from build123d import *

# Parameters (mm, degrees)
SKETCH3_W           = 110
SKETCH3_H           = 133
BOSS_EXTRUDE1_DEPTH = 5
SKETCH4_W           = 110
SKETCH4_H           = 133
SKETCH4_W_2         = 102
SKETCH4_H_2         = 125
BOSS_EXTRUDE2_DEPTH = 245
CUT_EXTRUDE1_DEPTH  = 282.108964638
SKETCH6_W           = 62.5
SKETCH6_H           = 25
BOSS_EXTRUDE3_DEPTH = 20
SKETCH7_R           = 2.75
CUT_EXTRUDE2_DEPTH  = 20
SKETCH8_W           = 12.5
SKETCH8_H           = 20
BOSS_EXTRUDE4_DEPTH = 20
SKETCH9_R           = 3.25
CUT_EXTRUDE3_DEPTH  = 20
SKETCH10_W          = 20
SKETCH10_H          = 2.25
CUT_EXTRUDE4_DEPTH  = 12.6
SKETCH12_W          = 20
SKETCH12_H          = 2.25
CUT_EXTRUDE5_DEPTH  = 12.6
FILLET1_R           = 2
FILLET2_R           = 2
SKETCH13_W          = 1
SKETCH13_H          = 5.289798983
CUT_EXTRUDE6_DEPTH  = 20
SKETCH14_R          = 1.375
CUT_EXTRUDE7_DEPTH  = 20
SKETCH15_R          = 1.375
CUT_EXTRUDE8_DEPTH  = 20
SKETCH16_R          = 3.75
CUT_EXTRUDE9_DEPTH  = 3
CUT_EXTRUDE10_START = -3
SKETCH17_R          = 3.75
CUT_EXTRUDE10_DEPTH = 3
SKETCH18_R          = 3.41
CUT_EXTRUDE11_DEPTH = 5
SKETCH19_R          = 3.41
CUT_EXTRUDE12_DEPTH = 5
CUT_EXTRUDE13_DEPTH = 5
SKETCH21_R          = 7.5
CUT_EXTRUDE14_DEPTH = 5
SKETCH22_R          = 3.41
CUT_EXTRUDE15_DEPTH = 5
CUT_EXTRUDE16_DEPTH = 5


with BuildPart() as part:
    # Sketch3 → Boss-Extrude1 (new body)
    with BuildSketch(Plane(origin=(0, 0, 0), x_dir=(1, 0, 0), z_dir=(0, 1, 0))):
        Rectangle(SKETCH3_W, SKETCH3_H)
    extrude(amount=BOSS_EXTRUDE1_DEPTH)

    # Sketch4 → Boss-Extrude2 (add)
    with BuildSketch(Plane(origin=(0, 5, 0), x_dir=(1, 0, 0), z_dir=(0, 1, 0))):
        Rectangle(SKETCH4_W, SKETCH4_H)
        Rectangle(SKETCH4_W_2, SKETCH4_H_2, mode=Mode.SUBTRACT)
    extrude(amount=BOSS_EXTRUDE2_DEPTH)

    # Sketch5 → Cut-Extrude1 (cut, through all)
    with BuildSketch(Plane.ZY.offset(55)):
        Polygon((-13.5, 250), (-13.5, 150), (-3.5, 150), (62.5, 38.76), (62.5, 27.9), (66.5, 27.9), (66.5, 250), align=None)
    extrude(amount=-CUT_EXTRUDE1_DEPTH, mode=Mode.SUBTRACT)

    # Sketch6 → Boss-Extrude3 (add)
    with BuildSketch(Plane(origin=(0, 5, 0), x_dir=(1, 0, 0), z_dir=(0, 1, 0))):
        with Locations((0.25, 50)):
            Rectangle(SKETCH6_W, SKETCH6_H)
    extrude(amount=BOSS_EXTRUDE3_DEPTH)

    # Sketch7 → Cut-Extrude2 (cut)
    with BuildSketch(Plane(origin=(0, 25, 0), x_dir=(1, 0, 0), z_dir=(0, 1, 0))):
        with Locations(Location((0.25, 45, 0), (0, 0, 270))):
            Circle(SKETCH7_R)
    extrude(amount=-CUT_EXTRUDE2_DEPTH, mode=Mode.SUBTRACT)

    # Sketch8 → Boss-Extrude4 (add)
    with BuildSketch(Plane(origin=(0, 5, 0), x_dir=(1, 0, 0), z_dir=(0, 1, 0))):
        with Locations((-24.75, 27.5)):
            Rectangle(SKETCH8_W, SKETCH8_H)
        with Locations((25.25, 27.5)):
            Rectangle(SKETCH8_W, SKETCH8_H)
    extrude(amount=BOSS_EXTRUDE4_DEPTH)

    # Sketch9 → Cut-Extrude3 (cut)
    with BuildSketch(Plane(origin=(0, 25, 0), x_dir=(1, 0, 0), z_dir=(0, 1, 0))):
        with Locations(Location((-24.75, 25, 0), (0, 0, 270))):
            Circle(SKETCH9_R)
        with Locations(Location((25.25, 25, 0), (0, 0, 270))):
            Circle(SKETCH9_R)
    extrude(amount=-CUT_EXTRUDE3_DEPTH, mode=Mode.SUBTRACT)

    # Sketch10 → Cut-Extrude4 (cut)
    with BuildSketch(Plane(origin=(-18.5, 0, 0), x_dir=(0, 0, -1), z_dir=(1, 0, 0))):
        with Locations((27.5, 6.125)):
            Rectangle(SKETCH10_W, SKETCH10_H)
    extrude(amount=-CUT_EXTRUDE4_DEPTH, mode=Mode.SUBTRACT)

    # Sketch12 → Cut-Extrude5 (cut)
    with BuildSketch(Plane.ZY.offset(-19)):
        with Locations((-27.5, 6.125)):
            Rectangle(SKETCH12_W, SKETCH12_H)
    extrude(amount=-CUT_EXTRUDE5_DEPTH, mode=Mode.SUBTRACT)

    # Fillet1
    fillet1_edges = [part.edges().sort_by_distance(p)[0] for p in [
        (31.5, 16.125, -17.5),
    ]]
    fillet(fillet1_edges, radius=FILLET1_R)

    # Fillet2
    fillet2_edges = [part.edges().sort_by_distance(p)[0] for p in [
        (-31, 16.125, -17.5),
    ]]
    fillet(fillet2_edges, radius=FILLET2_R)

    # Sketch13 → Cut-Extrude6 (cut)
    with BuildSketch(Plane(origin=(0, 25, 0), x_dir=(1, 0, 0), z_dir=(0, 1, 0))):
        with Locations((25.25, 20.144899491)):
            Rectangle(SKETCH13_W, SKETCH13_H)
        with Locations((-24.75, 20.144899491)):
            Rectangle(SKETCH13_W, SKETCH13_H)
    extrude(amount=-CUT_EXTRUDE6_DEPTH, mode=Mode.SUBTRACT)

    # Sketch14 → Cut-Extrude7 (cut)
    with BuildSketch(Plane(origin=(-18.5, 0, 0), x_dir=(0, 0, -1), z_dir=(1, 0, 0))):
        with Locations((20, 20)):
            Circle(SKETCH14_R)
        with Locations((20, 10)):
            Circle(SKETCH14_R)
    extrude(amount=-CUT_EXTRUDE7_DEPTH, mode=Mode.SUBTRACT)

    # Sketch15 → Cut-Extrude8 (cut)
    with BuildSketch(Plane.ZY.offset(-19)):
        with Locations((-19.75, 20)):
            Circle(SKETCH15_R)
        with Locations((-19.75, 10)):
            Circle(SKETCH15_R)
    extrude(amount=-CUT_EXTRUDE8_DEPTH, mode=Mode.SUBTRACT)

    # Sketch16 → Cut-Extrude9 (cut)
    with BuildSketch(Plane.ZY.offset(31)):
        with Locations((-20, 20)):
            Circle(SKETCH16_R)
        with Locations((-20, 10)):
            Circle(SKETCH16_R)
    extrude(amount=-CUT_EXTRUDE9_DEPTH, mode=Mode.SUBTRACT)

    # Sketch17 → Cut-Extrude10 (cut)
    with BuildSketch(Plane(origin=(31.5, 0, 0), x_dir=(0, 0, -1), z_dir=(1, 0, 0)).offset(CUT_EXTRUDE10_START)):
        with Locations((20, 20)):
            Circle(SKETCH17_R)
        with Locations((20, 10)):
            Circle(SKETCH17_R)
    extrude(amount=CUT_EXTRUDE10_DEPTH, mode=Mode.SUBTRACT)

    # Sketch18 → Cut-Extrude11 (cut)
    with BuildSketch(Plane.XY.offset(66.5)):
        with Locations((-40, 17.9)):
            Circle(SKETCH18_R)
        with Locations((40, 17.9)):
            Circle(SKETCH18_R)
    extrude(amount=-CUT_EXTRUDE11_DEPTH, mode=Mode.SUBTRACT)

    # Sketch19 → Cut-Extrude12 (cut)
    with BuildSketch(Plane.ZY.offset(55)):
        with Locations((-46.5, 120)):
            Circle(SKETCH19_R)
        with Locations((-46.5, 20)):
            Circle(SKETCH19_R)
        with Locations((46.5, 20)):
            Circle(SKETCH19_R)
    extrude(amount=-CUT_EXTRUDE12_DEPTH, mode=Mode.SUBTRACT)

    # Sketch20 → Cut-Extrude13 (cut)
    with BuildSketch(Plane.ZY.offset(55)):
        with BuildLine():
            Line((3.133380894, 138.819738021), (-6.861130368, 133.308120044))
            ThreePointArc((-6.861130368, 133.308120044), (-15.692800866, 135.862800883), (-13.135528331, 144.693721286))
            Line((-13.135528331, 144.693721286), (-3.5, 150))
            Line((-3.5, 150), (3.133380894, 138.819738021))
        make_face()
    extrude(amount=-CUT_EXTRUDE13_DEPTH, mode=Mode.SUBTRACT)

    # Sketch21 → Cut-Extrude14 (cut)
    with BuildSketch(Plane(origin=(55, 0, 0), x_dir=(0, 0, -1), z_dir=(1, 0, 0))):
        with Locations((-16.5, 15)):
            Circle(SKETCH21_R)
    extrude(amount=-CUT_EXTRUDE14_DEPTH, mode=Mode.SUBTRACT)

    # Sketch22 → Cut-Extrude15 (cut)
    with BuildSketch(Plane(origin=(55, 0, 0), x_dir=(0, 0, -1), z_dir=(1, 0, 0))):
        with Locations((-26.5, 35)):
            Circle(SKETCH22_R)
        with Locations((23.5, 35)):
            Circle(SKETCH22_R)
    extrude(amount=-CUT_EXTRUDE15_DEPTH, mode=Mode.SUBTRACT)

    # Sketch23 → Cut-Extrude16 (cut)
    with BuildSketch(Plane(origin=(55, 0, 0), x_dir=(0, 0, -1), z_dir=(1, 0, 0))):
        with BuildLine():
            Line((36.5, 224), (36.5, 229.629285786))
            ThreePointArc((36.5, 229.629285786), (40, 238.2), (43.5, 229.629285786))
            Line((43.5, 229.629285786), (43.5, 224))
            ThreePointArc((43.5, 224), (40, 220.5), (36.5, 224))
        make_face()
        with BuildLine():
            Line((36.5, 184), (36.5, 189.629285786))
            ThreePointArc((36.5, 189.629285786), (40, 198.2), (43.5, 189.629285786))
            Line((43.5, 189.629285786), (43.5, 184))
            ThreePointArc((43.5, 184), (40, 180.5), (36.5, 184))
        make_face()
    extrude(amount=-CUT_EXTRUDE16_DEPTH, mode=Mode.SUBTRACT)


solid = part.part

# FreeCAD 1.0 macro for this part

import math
import FreeCAD as App
import Part
import Sketcher
Q = App.Units.Quantity


def edges_at(feature, points):
    """Names of the edges that pass closest to the given points."""
    edges = feature.Shape.Edges
    near = lambda p: min(range(len(edges)), key=lambda i: edges[i].distToShape(Part.Vertex(*p))[0])
    return sorted({f"Edge{near(p) + 1}" for p in points})

doc = App.newDocument("Part")
body = doc.addObject("PartDesign::Body", "Body")

# Sketch on XZ plane
sketch1 = body.newObject("Sketcher::SketchObject", "Sketch")
sketch1.AttachmentSupport = (doc.getObject("XZ_Plane"), [""])
sketch1.MapMode = "FlatFace"
sketch1.addGeometry(Part.LineSegment(App.Vector(-55, -66, 0), App.Vector(-55, 66, 0)), False)
sketch1.addGeometry(Part.LineSegment(App.Vector(-55, 66, 0), App.Vector(55, 66, 0)), False)
sketch1.addGeometry(Part.LineSegment(App.Vector(55, 66, 0), App.Vector(55, -66, 0)), False)
sketch1.addGeometry(Part.LineSegment(App.Vector(55, -66, 0), App.Vector(-55, -66, 0)), False)
sketch1.addConstraint(Sketcher.Constraint("Coincident", 0, 2, 1, 1))
sketch1.addConstraint(Sketcher.Constraint("Coincident", 1, 2, 2, 1))
sketch1.addConstraint(Sketcher.Constraint("Coincident", 2, 2, 3, 1))
sketch1.addConstraint(Sketcher.Constraint("Coincident", 3, 2, 0, 1))
sketch1.addConstraint(Sketcher.Constraint("Vertical", 0))
sketch1.addConstraint(Sketcher.Constraint("Horizontal", 1))
sketch1.addConstraint(Sketcher.Constraint("Vertical", 2))
sketch1.addConstraint(Sketcher.Constraint("Horizontal", 3))
sketch1.addConstraint(Sketcher.Constraint("Symmetric", 0, 2, 2, 2, -1, 1))
sketch1.addConstraint(Sketcher.Constraint("DistanceX", 1, 1, 1, 2, Q("110 mm")))
sketch1.addConstraint(Sketcher.Constraint("DistanceY", 0, 1, 0, 2, Q("133 mm")))
pad1 = body.newObject("PartDesign::Pad", "Pad")
pad1.Profile = sketch1
pad1.Length = 5
pad1.Reversed = True

# Sketch on XZ plane
sketch2 = body.newObject("Sketcher::SketchObject", "Sketch001")
sketch2.AttachmentSupport = (doc.getObject("XZ_Plane"), [""])
sketch2.MapMode = "FlatFace"
sketch2.AttachmentOffset = App.Placement(App.Vector(0, 0, -5), App.Rotation())
sketch2.addGeometry(Part.LineSegment(App.Vector(-55, -66, 0), App.Vector(-55, 66, 0)), False)
sketch2.addGeometry(Part.LineSegment(App.Vector(-55, 66, 0), App.Vector(55, 66, 0)), False)
sketch2.addGeometry(Part.LineSegment(App.Vector(55, 66, 0), App.Vector(55, -66, 0)), False)
sketch2.addGeometry(Part.LineSegment(App.Vector(55, -66, 0), App.Vector(-55, -66, 0)), False)
sketch2.addGeometry(Part.LineSegment(App.Vector(51, 62, 0), App.Vector(-51, 62, 0)), False)
sketch2.addGeometry(Part.LineSegment(App.Vector(-51, 62, 0), App.Vector(-51, -62, 0)), False)
sketch2.addGeometry(Part.LineSegment(App.Vector(-51, -62, 0), App.Vector(51, -62, 0)), False)
sketch2.addGeometry(Part.LineSegment(App.Vector(51, -62, 0), App.Vector(51, 62, 0)), False)
sketch2.addConstraint(Sketcher.Constraint("Coincident", 0, 2, 1, 1))
sketch2.addConstraint(Sketcher.Constraint("Coincident", 1, 2, 2, 1))
sketch2.addConstraint(Sketcher.Constraint("Coincident", 2, 2, 3, 1))
sketch2.addConstraint(Sketcher.Constraint("Coincident", 3, 2, 0, 1))
sketch2.addConstraint(Sketcher.Constraint("Coincident", 4, 2, 5, 1))
sketch2.addConstraint(Sketcher.Constraint("Coincident", 5, 2, 6, 1))
sketch2.addConstraint(Sketcher.Constraint("Coincident", 6, 2, 7, 1))
sketch2.addConstraint(Sketcher.Constraint("Coincident", 7, 2, 4, 1))
sketch2.addConstraint(Sketcher.Constraint("Vertical", 0))
sketch2.addConstraint(Sketcher.Constraint("Horizontal", 1))
sketch2.addConstraint(Sketcher.Constraint("Vertical", 2))
sketch2.addConstraint(Sketcher.Constraint("Horizontal", 3))
sketch2.addConstraint(Sketcher.Constraint("Horizontal", 4))
sketch2.addConstraint(Sketcher.Constraint("Vertical", 5))
sketch2.addConstraint(Sketcher.Constraint("Horizontal", 6))
sketch2.addConstraint(Sketcher.Constraint("Vertical", 7))
sketch2.addConstraint(Sketcher.Constraint("Symmetric", 0, 2, 2, 2, -1, 1))
sketch2.addConstraint(Sketcher.Constraint("Symmetric", 4, 2, 6, 2, -1, 1))
sketch2.addConstraint(Sketcher.Constraint("DistanceX", 1, 1, 1, 2, Q("110 mm")))
sketch2.addConstraint(Sketcher.Constraint("DistanceX", 4, 2, 4, 1, Q("102 mm")))
sketch2.addConstraint(Sketcher.Constraint("DistanceY", 0, 1, 0, 2, Q("133 mm")))
sketch2.addConstraint(Sketcher.Constraint("DistanceY", 5, 2, 5, 1, Q("125 mm")))
pad2 = body.newObject("PartDesign::Pad", "Pad001")
pad2.Profile = sketch2
pad2.Length = 245
pad2.Reversed = True

# Sketch on YZ plane
sketch3 = body.newObject("Sketcher::SketchObject", "Sketch002")
sketch3.AttachmentSupport = (doc.getObject("YZ_Plane"), [""])
sketch3.MapMode = "FlatFace"
sketch3.AttachmentOffset = App.Placement(App.Vector(0, 0, -55), App.Rotation())
sketch3.addGeometry(Part.LineSegment(App.Vector(250, -13.5, 0), App.Vector(150, -13.5, 0)), False)
sketch3.addGeometry(Part.LineSegment(App.Vector(150, -13.5, 0), App.Vector(150, -3.5, 0)), False)
sketch3.addGeometry(Part.LineSegment(App.Vector(150, -3.5, 0), App.Vector(38.8, 62.5, 0)), False)
sketch3.addGeometry(Part.LineSegment(App.Vector(38.8, 62.5, 0), App.Vector(27.9, 62.5, 0)), False)
sketch3.addGeometry(Part.LineSegment(App.Vector(27.9, 62.5, 0), App.Vector(27.9, 66.5, 0)), False)
sketch3.addGeometry(Part.LineSegment(App.Vector(27.9, 66.5, 0), App.Vector(250, 66.5, 0)), False)
sketch3.addGeometry(Part.LineSegment(App.Vector(250, 66.5, 0), App.Vector(250, -13.5, 0)), False)
sketch3.addConstraint(Sketcher.Constraint("Coincident", 0, 2, 1, 1))
sketch3.addConstraint(Sketcher.Constraint("Coincident", 1, 2, 2, 1))
sketch3.addConstraint(Sketcher.Constraint("Coincident", 2, 2, 3, 1))
sketch3.addConstraint(Sketcher.Constraint("Coincident", 3, 2, 4, 1))
sketch3.addConstraint(Sketcher.Constraint("Coincident", 4, 2, 5, 1))
sketch3.addConstraint(Sketcher.Constraint("Coincident", 5, 2, 6, 1))
sketch3.addConstraint(Sketcher.Constraint("Coincident", 6, 2, 0, 1))
sketch3.addConstraint(Sketcher.Constraint("Horizontal", 0))
sketch3.addConstraint(Sketcher.Constraint("Vertical", 1))
sketch3.addConstraint(Sketcher.Constraint("Horizontal", 3))
sketch3.addConstraint(Sketcher.Constraint("Vertical", 4))
sketch3.addConstraint(Sketcher.Constraint("Horizontal", 5))
sketch3.addConstraint(Sketcher.Constraint("Vertical", 6))
sketch3.addConstraint(Sketcher.Constraint("DistanceX", 0, 2, 0, 1, Q("100 mm")))
sketch3.addConstraint(Sketcher.Constraint("DistanceY", 1, 1, 1, 2, Q("10 mm")))
sketch3.addConstraint(Sketcher.Constraint("DistanceY", 4, 1, 4, 2, Q("4 mm")))
sketch3.addConstraint(Sketcher.Constraint("DistanceY", 6, 2, 6, 1, Q("80 mm")))
sketch3.addConstraint(Sketcher.Constraint("DistanceX", 5, 1, 5, 2, Q("222.1 mm")))
sketch3.addConstraint(Sketcher.Constraint("DistanceX", -1, 1, 0, 2, Q("150 mm")))
sketch3.addConstraint(Sketcher.Constraint("DistanceX", 3, 2, 3, 1, Q("10.86 mm")))
sketch3.addConstraint(Sketcher.Constraint("DistanceY", 0, 2, -1, 1, Q("13.5 mm")))
pocket1 = body.newObject("PartDesign::Pocket", "Pocket")
pocket1.Profile = sketch3
pocket1.Type = "ThroughAll"
pocket1.Reversed = True

# Sketch on XZ plane
sketch4 = body.newObject("Sketcher::SketchObject", "Sketch003")
sketch4.AttachmentSupport = (doc.getObject("XZ_Plane"), [""])
sketch4.MapMode = "FlatFace"
sketch4.AttachmentOffset = App.Placement(App.Vector(0, 0, -5), App.Rotation())
sketch4.addGeometry(Part.LineSegment(App.Vector(-31, -62, 0), App.Vector(-31, -38, 0)), False)
sketch4.addGeometry(Part.LineSegment(App.Vector(-31, -38, 0), App.Vector(32, -38, 0)), False)
sketch4.addGeometry(Part.LineSegment(App.Vector(32, -38, 0), App.Vector(32, -62, 0)), False)
sketch4.addGeometry(Part.LineSegment(App.Vector(32, -62, 0), App.Vector(-31, -62, 0)), False)
sketch4.addConstraint(Sketcher.Constraint("Coincident", 0, 2, 1, 1))
sketch4.addConstraint(Sketcher.Constraint("Coincident", 1, 2, 2, 1))
sketch4.addConstraint(Sketcher.Constraint("Coincident", 2, 2, 3, 1))
sketch4.addConstraint(Sketcher.Constraint("Coincident", 3, 2, 0, 1))
sketch4.addConstraint(Sketcher.Constraint("Vertical", 0))
sketch4.addConstraint(Sketcher.Constraint("Horizontal", 1))
sketch4.addConstraint(Sketcher.Constraint("Vertical", 2))
sketch4.addConstraint(Sketcher.Constraint("Horizontal", 3))
sketch4.addConstraint(Sketcher.Constraint("DistanceY", 0, 1, 0, 2, Q("25 mm")))
sketch4.addConstraint(Sketcher.Constraint("DistanceX", 1, 1, 1, 2, Q("62.5 mm")))
sketch4.addConstraint(Sketcher.Constraint("DistanceX", 0, 2, -1, 1, Q("31 mm")))
sketch4.addConstraint(Sketcher.Constraint("DistanceY", 0, 2, -1, 1, Q("37.5 mm")))
pad3 = body.newObject("PartDesign::Pad", "Pad002")
pad3.Profile = sketch4
pad3.Length = 20
pad3.Reversed = True

# Sketch on XZ plane
sketch5 = body.newObject("Sketcher::SketchObject", "Sketch004")
sketch5.AttachmentSupport = (doc.getObject("XZ_Plane"), [""])
sketch5.MapMode = "FlatFace"
sketch5.AttachmentOffset = App.Placement(App.Vector(0, 0, -25), App.Rotation())
sketch5.addGeometry(Part.Circle(App.Vector(0.2, -45, 0), App.Vector(0, 0, 1), 2.8), False)
sketch5.addConstraint(Sketcher.Constraint("Diameter", 0, Q("5.5 mm")))
sketch5.addConstraint(Sketcher.Constraint("DistanceY", 0, 3, -1, 1, Q("45 mm")))
sketch5.addConstraint(Sketcher.Constraint("DistanceX", -1, 1, 0, 3, Q("0.25 mm")))
pocket2 = body.newObject("PartDesign::Pocket", "Pocket001")
pocket2.Profile = sketch5
pocket2.Length = 20
pocket2.Reversed = True

# Sketch on XZ plane
sketch6 = body.newObject("Sketcher::SketchObject", "Sketch005")
sketch6.AttachmentSupport = (doc.getObject("XZ_Plane"), [""])
sketch6.MapMode = "FlatFace"
sketch6.AttachmentOffset = App.Placement(App.Vector(0, 0, -5), App.Rotation())
sketch6.addGeometry(Part.LineSegment(App.Vector(-31, -38, 0), App.Vector(-31, -18, 0)), False)
sketch6.addGeometry(Part.LineSegment(App.Vector(-31, -18, 0), App.Vector(-18, -18, 0)), False)
sketch6.addGeometry(Part.LineSegment(App.Vector(-18, -18, 0), App.Vector(-18, -38, 0)), False)
sketch6.addGeometry(Part.LineSegment(App.Vector(-18, -38, 0), App.Vector(-31, -38, 0)), False)
sketch6.addGeometry(Part.LineSegment(App.Vector(19, -38, 0), App.Vector(19, -18, 0)), False)
sketch6.addGeometry(Part.LineSegment(App.Vector(19, -18, 0), App.Vector(32, -18, 0)), False)
sketch6.addGeometry(Part.LineSegment(App.Vector(32, -18, 0), App.Vector(32, -38, 0)), False)
sketch6.addGeometry(Part.LineSegment(App.Vector(32, -38, 0), App.Vector(19, -38, 0)), False)
sketch6.addConstraint(Sketcher.Constraint("Coincident", 0, 2, 1, 1))
sketch6.addConstraint(Sketcher.Constraint("Coincident", 1, 2, 2, 1))
sketch6.addConstraint(Sketcher.Constraint("Coincident", 2, 2, 3, 1))
sketch6.addConstraint(Sketcher.Constraint("Coincident", 3, 2, 0, 1))
sketch6.addConstraint(Sketcher.Constraint("Coincident", 4, 2, 5, 1))
sketch6.addConstraint(Sketcher.Constraint("Coincident", 5, 2, 6, 1))
sketch6.addConstraint(Sketcher.Constraint("Coincident", 6, 2, 7, 1))
sketch6.addConstraint(Sketcher.Constraint("Coincident", 7, 2, 4, 1))
sketch6.addConstraint(Sketcher.Constraint("Vertical", 0))
sketch6.addConstraint(Sketcher.Constraint("Horizontal", 1))
sketch6.addConstraint(Sketcher.Constraint("Vertical", 2))
sketch6.addConstraint(Sketcher.Constraint("Horizontal", 3))
sketch6.addConstraint(Sketcher.Constraint("Vertical", 4))
sketch6.addConstraint(Sketcher.Constraint("Horizontal", 5))
sketch6.addConstraint(Sketcher.Constraint("Vertical", 6))
sketch6.addConstraint(Sketcher.Constraint("Horizontal", 7))
sketch6.addConstraint(Sketcher.Constraint("Horizontal", 1, 2, 4, 2))
sketch6.addConstraint(Sketcher.Constraint("Horizontal", 3, 2, 6, 2))
sketch6.addConstraint(Sketcher.Constraint("Equal", 3, 5))
sketch6.addConstraint(Sketcher.Constraint("DistanceY", 0, 1, 0, 2, Q("20 mm")))
sketch6.addConstraint(Sketcher.Constraint("DistanceX", 1, 1, 1, 2, Q("12.5 mm")))
sketch6.addConstraint(Sketcher.Constraint("DistanceX", 0, 2, -1, 1, Q("31 mm")))
sketch6.addConstraint(Sketcher.Constraint("DistanceX", -1, 1, 4, 2, Q("19 mm")))
sketch6.addConstraint(Sketcher.Constraint("DistanceY", 0, 2, -1, 1, Q("17.5 mm")))
pad4 = body.newObject("PartDesign::Pad", "Pad003")
pad4.Profile = sketch6
pad4.Length = 20
pad4.Reversed = True

# Sketch on XZ plane
sketch7 = body.newObject("Sketcher::SketchObject", "Sketch006")
sketch7.AttachmentSupport = (doc.getObject("XZ_Plane"), [""])
sketch7.MapMode = "FlatFace"
sketch7.AttachmentOffset = App.Placement(App.Vector(0, 0, -25), App.Rotation())
sketch7.addGeometry(Part.Circle(App.Vector(-24.8, -25, 0), App.Vector(0, 0, 1), 3.2), False)
sketch7.addGeometry(Part.Circle(App.Vector(25.2, -25, 0), App.Vector(0, 0, 1), 3.2), False)
sketch7.addConstraint(Sketcher.Constraint("Equal", 0, 1))
sketch7.addConstraint(Sketcher.Constraint("Horizontal", 0, 3, 1, 3))
sketch7.addConstraint(Sketcher.Constraint("Diameter", 0, Q("6.5 mm")))
sketch7.addConstraint(Sketcher.Constraint("DistanceY", 0, 3, -1, 1, Q("25 mm")))
sketch7.addConstraint(Sketcher.Constraint("DistanceX", 0, 3, 1, 3, Q("50 mm")))
sketch7.addConstraint(Sketcher.Constraint("DistanceX", 0, 3, -1, 1, Q("24.75 mm")))
pocket3 = body.newObject("PartDesign::Pocket", "Pocket002")
pocket3.Profile = sketch7
pocket3.Length = 20
pocket3.Reversed = True

# Sketch on YZ plane
sketch8 = body.newObject("Sketcher::SketchObject", "Sketch007")
sketch8.AttachmentSupport = (doc.getObject("YZ_Plane"), [""])
sketch8.MapMode = "FlatFace"
sketch8.AttachmentOffset = App.Placement(App.Vector(0, 0, -18.5), App.Rotation())
sketch8.addGeometry(Part.LineSegment(App.Vector(7.2, -17.5, 0), App.Vector(5, -17.5, 0)), False)
sketch8.addGeometry(Part.LineSegment(App.Vector(5, -17.5, 0), App.Vector(5, -37.5, 0)), False)
sketch8.addGeometry(Part.LineSegment(App.Vector(5, -37.5, 0), App.Vector(7.2, -37.5, 0)), False)
sketch8.addGeometry(Part.LineSegment(App.Vector(7.2, -37.5, 0), App.Vector(7.2, -17.5, 0)), False)
sketch8.addConstraint(Sketcher.Constraint("Coincident", 0, 2, 1, 1))
sketch8.addConstraint(Sketcher.Constraint("Coincident", 1, 2, 2, 1))
sketch8.addConstraint(Sketcher.Constraint("Coincident", 2, 2, 3, 1))
sketch8.addConstraint(Sketcher.Constraint("Coincident", 3, 2, 0, 1))
sketch8.addConstraint(Sketcher.Constraint("Horizontal", 0))
sketch8.addConstraint(Sketcher.Constraint("Vertical", 1))
sketch8.addConstraint(Sketcher.Constraint("Horizontal", 2))
sketch8.addConstraint(Sketcher.Constraint("Vertical", 3))
sketch8.addConstraint(Sketcher.Constraint("DistanceY", 1, 2, 1, 1, Q("20 mm")))
sketch8.addConstraint(Sketcher.Constraint("DistanceX", -1, 1, 0, 2, Q("5 mm")))
sketch8.addConstraint(Sketcher.Constraint("DistanceX", 0, 2, 0, 1, Q("2.25 mm")))
sketch8.addConstraint(Sketcher.Constraint("DistanceY", 0, 2, -1, 1, Q("17.5 mm")))
pocket4 = body.newObject("PartDesign::Pocket", "Pocket003")
pocket4.Profile = sketch8
pocket4.Length = 12.6

# Sketch on YZ plane
sketch9 = body.newObject("Sketcher::SketchObject", "Sketch008")
sketch9.AttachmentSupport = (doc.getObject("YZ_Plane"), [""])
sketch9.MapMode = "FlatFace"
sketch9.AttachmentOffset = App.Placement(App.Vector(0, 0, 19), App.Rotation())
sketch9.addGeometry(Part.LineSegment(App.Vector(7.2, -37.5, 0), App.Vector(5, -37.5, 0)), False)
sketch9.addGeometry(Part.LineSegment(App.Vector(5, -37.5, 0), App.Vector(5, -17.5, 0)), False)
sketch9.addGeometry(Part.LineSegment(App.Vector(5, -17.5, 0), App.Vector(7.2, -17.5, 0)), False)
sketch9.addGeometry(Part.LineSegment(App.Vector(7.2, -17.5, 0), App.Vector(7.2, -37.5, 0)), False)
sketch9.addConstraint(Sketcher.Constraint("Coincident", 0, 2, 1, 1))
sketch9.addConstraint(Sketcher.Constraint("Coincident", 1, 2, 2, 1))
sketch9.addConstraint(Sketcher.Constraint("Coincident", 2, 2, 3, 1))
sketch9.addConstraint(Sketcher.Constraint("Coincident", 3, 2, 0, 1))
sketch9.addConstraint(Sketcher.Constraint("Horizontal", 0))
sketch9.addConstraint(Sketcher.Constraint("Vertical", 1))
sketch9.addConstraint(Sketcher.Constraint("Horizontal", 2))
sketch9.addConstraint(Sketcher.Constraint("Vertical", 3))
sketch9.addConstraint(Sketcher.Constraint("DistanceY", 1, 1, 1, 2, Q("20 mm")))
sketch9.addConstraint(Sketcher.Constraint("DistanceX", -1, 1, 0, 2, Q("5 mm")))
sketch9.addConstraint(Sketcher.Constraint("DistanceX", 0, 2, 0, 1, Q("2.25 mm")))
sketch9.addConstraint(Sketcher.Constraint("DistanceY", 0, 2, -1, 1, Q("37.5 mm")))
pocket5 = body.newObject("PartDesign::Pocket", "Pocket004")
pocket5.Profile = sketch9
pocket5.Length = 12.6
pocket5.Reversed = True
doc.recompute()

fillet = body.newObject("PartDesign::Fillet", "Fillet")
fillet.Base = (pocket5, edges_at(pocket5, [(31.5, 16.125, -17.5)]))
fillet.Radius = 2
doc.recompute()

fillet2 = body.newObject("PartDesign::Fillet", "Fillet001")
fillet2.Base = (fillet, edges_at(fillet, [(-31, 16.125, -17.5)]))
fillet2.Radius = 2

# Sketch on XZ plane
sketch10 = body.newObject("Sketcher::SketchObject", "Sketch009")
sketch10.AttachmentSupport = (doc.getObject("XZ_Plane"), [""])
sketch10.MapMode = "FlatFace"
sketch10.AttachmentOffset = App.Placement(App.Vector(0, 0, -25), App.Rotation())
sketch10.addGeometry(Part.LineSegment(App.Vector(24.8, -22.8, 0), App.Vector(24.8, -17.5, 0)), False)
sketch10.addGeometry(Part.LineSegment(App.Vector(24.8, -17.5, 0), App.Vector(25.8, -17.5, 0)), False)
sketch10.addGeometry(Part.LineSegment(App.Vector(25.8, -17.5, 0), App.Vector(25.8, -22.8, 0)), False)
sketch10.addGeometry(Part.LineSegment(App.Vector(25.8, -22.8, 0), App.Vector(24.8, -22.8, 0)), False)
sketch10.addGeometry(Part.LineSegment(App.Vector(-25.2, -22.8, 0), App.Vector(-25.2, -17.5, 0)), False)
sketch10.addGeometry(Part.LineSegment(App.Vector(-25.2, -17.5, 0), App.Vector(-24.2, -17.5, 0)), False)
sketch10.addGeometry(Part.LineSegment(App.Vector(-24.2, -17.5, 0), App.Vector(-24.2, -22.8, 0)), False)
sketch10.addGeometry(Part.LineSegment(App.Vector(-24.2, -22.8, 0), App.Vector(-25.2, -22.8, 0)), False)
sketch10.addConstraint(Sketcher.Constraint("Coincident", 0, 2, 1, 1))
sketch10.addConstraint(Sketcher.Constraint("Coincident", 1, 2, 2, 1))
sketch10.addConstraint(Sketcher.Constraint("Coincident", 2, 2, 3, 1))
sketch10.addConstraint(Sketcher.Constraint("Coincident", 3, 2, 0, 1))
sketch10.addConstraint(Sketcher.Constraint("Coincident", 4, 2, 5, 1))
sketch10.addConstraint(Sketcher.Constraint("Coincident", 5, 2, 6, 1))
sketch10.addConstraint(Sketcher.Constraint("Coincident", 6, 2, 7, 1))
sketch10.addConstraint(Sketcher.Constraint("Coincident", 7, 2, 4, 1))
sketch10.addConstraint(Sketcher.Constraint("Vertical", 0))
sketch10.addConstraint(Sketcher.Constraint("Horizontal", 1))
sketch10.addConstraint(Sketcher.Constraint("Vertical", 2))
sketch10.addConstraint(Sketcher.Constraint("Horizontal", 3))
sketch10.addConstraint(Sketcher.Constraint("Vertical", 4))
sketch10.addConstraint(Sketcher.Constraint("Horizontal", 5))
sketch10.addConstraint(Sketcher.Constraint("Vertical", 6))
sketch10.addConstraint(Sketcher.Constraint("Horizontal", 7))
sketch10.addConstraint(Sketcher.Constraint("Horizontal", 1, 2, 4, 2))
sketch10.addConstraint(Sketcher.Constraint("Horizontal", 3, 2, 6, 2))
sketch10.addConstraint(Sketcher.Constraint("Equal", 3, 5))
sketch10.addConstraint(Sketcher.Constraint("DistanceX", 1, 1, 1, 2, Q("1 mm")))
sketch10.addConstraint(Sketcher.Constraint("DistanceX", 4, 2, 0, 2, Q("50 mm")))
sketch10.addConstraint(Sketcher.Constraint("DistanceY", 0, 2, -1, 1, Q("17.5 mm")))
sketch10.addConstraint(Sketcher.Constraint("DistanceX", -1, 1, 0, 2, Q("24.75 mm")))
sketch10.addConstraint(Sketcher.Constraint("DistanceY", 0, 1, 0, 2, Q("5.289799 mm")))
pocket6 = body.newObject("PartDesign::Pocket", "Pocket005")
pocket6.Profile = sketch10
pocket6.Length = 20
pocket6.Reversed = True

# Sketch on YZ plane
sketch11 = body.newObject("Sketcher::SketchObject", "Sketch010")
sketch11.AttachmentSupport = (doc.getObject("YZ_Plane"), [""])
sketch11.MapMode = "FlatFace"
sketch11.AttachmentOffset = App.Placement(App.Vector(0, 0, -18.5), App.Rotation())
sketch11.addGeometry(Part.Circle(App.Vector(20, -20, 0), App.Vector(0, 0, 1), 1.4), False)
sketch11.addGeometry(Part.Circle(App.Vector(10, -20, 0), App.Vector(0, 0, 1), 1.4), False)
sketch11.addConstraint(Sketcher.Constraint("Equal", 0, 1))
sketch11.addConstraint(Sketcher.Constraint("Horizontal", 0, 3, 1, 3))
sketch11.addConstraint(Sketcher.Constraint("Diameter", 0, Q("2.75 mm")))
sketch11.addConstraint(Sketcher.Constraint("DistanceX", -1, 1, 0, 3, Q("20 mm")))
sketch11.addConstraint(Sketcher.Constraint("DistanceY", 0, 3, -1, 1, Q("20 mm")))
sketch11.addConstraint(Sketcher.Constraint("DistanceX", -1, 1, 1, 3, Q("10 mm")))
pocket7 = body.newObject("PartDesign::Pocket", "Pocket006")
pocket7.Profile = sketch11
pocket7.Length = 20

# Sketch on YZ plane
sketch12 = body.newObject("Sketcher::SketchObject", "Sketch011")
sketch12.AttachmentSupport = (doc.getObject("YZ_Plane"), [""])
sketch12.MapMode = "FlatFace"
sketch12.AttachmentOffset = App.Placement(App.Vector(0, 0, 19), App.Rotation())
sketch12.addGeometry(Part.Circle(App.Vector(20, -19.8, 0), App.Vector(0, 0, 1), 1.4), False)
sketch12.addGeometry(Part.Circle(App.Vector(10, -19.8, 0), App.Vector(0, 0, 1), 1.4), False)
sketch12.addConstraint(Sketcher.Constraint("Equal", 0, 1))
sketch12.addConstraint(Sketcher.Constraint("Horizontal", 0, 3, 1, 3))
sketch12.addConstraint(Sketcher.Constraint("Diameter", 0, Q("2.75 mm")))
sketch12.addConstraint(Sketcher.Constraint("DistanceX", -1, 1, 0, 3, Q("20 mm")))
sketch12.addConstraint(Sketcher.Constraint("DistanceX", -1, 1, 1, 3, Q("10 mm")))
sketch12.addConstraint(Sketcher.Constraint("DistanceY", 0, 3, -1, 1, Q("19.75 mm")))
pocket8 = body.newObject("PartDesign::Pocket", "Pocket007")
pocket8.Profile = sketch12
pocket8.Length = 20
pocket8.Reversed = True

# Sketch on YZ plane
sketch13 = body.newObject("Sketcher::SketchObject", "Sketch012")
sketch13.AttachmentSupport = (doc.getObject("YZ_Plane"), [""])
sketch13.MapMode = "FlatFace"
sketch13.AttachmentOffset = App.Placement(App.Vector(0, 0, -31), App.Rotation())
sketch13.addGeometry(Part.Circle(App.Vector(20, -20, 0), App.Vector(0, 0, 1), 3.8), False)
sketch13.addGeometry(Part.Circle(App.Vector(10, -20, 0), App.Vector(0, 0, 1), 3.8), False)
sketch13.addConstraint(Sketcher.Constraint("Equal", 0, 1))
sketch13.addConstraint(Sketcher.Constraint("Horizontal", 0, 3, 1, 3))
sketch13.addConstraint(Sketcher.Constraint("Diameter", 0, Q("7.5 mm")))
sketch13.addConstraint(Sketcher.Constraint("DistanceX", -1, 1, 0, 3, Q("20 mm")))
sketch13.addConstraint(Sketcher.Constraint("DistanceY", 0, 3, -1, 1, Q("20 mm")))
sketch13.addConstraint(Sketcher.Constraint("DistanceX", -1, 1, 1, 3, Q("10 mm")))
pocket9 = body.newObject("PartDesign::Pocket", "Pocket008")
pocket9.Profile = sketch13
pocket9.Length = 3
pocket9.Reversed = True

# Sketch on YZ plane
sketch14 = body.newObject("Sketcher::SketchObject", "Sketch013")
sketch14.AttachmentSupport = (doc.getObject("YZ_Plane"), [""])
sketch14.MapMode = "FlatFace"
sketch14.AttachmentOffset = App.Placement(App.Vector(0, 0, 28.5), App.Rotation())
sketch14.addGeometry(Part.Circle(App.Vector(20, -20, 0), App.Vector(0, 0, 1), 3.8), False)
sketch14.addGeometry(Part.Circle(App.Vector(10, -20, 0), App.Vector(0, 0, 1), 3.8), False)
sketch14.addConstraint(Sketcher.Constraint("Equal", 0, 1))
sketch14.addConstraint(Sketcher.Constraint("Horizontal", 0, 3, 1, 3))
sketch14.addConstraint(Sketcher.Constraint("Diameter", 0, Q("7.5 mm")))
sketch14.addConstraint(Sketcher.Constraint("DistanceX", -1, 1, 0, 3, Q("20 mm")))
sketch14.addConstraint(Sketcher.Constraint("DistanceY", 0, 3, -1, 1, Q("20 mm")))
sketch14.addConstraint(Sketcher.Constraint("DistanceX", -1, 1, 1, 3, Q("10 mm")))
pocket10 = body.newObject("PartDesign::Pocket", "Pocket009")
pocket10.Profile = sketch14
pocket10.Length = 3
pocket10.Reversed = True

# Sketch on XY plane
sketch15 = body.newObject("Sketcher::SketchObject", "Sketch014")
sketch15.AttachmentSupport = (doc.getObject("XY_Plane"), [""])
sketch15.MapMode = "FlatFace"
sketch15.AttachmentOffset = App.Placement(App.Vector(0, 0, 66.5), App.Rotation())
sketch15.addGeometry(Part.Circle(App.Vector(-40, 17.9, 0), App.Vector(0, 0, 1), 3.4), False)
sketch15.addGeometry(Part.Circle(App.Vector(40, 17.9, 0), App.Vector(0, 0, 1), 3.4), False)
sketch15.addConstraint(Sketcher.Constraint("Equal", 0, 1))
sketch15.addConstraint(Sketcher.Constraint("Symmetric", 0, 3, 1, 3, -2))
sketch15.addConstraint(Sketcher.Constraint("Diameter", 0, Q("6.82 mm")))
sketch15.addConstraint(Sketcher.Constraint("DistanceX", 0, 3, -1, 1, Q("40 mm")))
sketch15.addConstraint(Sketcher.Constraint("DistanceY", -1, 1, 0, 3, Q("17.9 mm")))
pocket11 = body.newObject("PartDesign::Pocket", "Pocket010")
pocket11.Profile = sketch15
pocket11.Length = 5

# Sketch on YZ plane
sketch16 = body.newObject("Sketcher::SketchObject", "Sketch015")
sketch16.AttachmentSupport = (doc.getObject("YZ_Plane"), [""])
sketch16.MapMode = "FlatFace"
sketch16.AttachmentOffset = App.Placement(App.Vector(0, 0, -55), App.Rotation())
sketch16.addGeometry(Part.Circle(App.Vector(120, -46.5, 0), App.Vector(0, 0, 1), 3.4), False)
sketch16.addGeometry(Part.Circle(App.Vector(20, -46.5, 0), App.Vector(0, 0, 1), 3.4), False)
sketch16.addGeometry(Part.Circle(App.Vector(20, 46.5, 0), App.Vector(0, 0, 1), 3.4), False)
sketch16.addConstraint(Sketcher.Constraint("Equal", 0, 1))
sketch16.addConstraint(Sketcher.Constraint("Equal", 1, 2))
sketch16.addConstraint(Sketcher.Constraint("Symmetric", 1, 3, 2, 3, -1))
sketch16.addConstraint(Sketcher.Constraint("Horizontal", 0, 3, 1, 3))
sketch16.addConstraint(Sketcher.Constraint("Diameter", 0, Q("6.82 mm")))
sketch16.addConstraint(Sketcher.Constraint("DistanceX", -1, 1, 0, 3, Q("120 mm")))
sketch16.addConstraint(Sketcher.Constraint("DistanceX", -1, 1, 1, 3, Q("20 mm")))
sketch16.addConstraint(Sketcher.Constraint("DistanceY", 1, 3, 2, 3, Q("93 mm")))
pocket12 = body.newObject("PartDesign::Pocket", "Pocket011")
pocket12.Profile = sketch16
pocket12.Length = 5
pocket12.Reversed = True

# Sketch on YZ plane
sketch17 = body.newObject("Sketcher::SketchObject", "Sketch016")
sketch17.AttachmentSupport = (doc.getObject("YZ_Plane"), [""])
sketch17.MapMode = "FlatFace"
sketch17.AttachmentOffset = App.Placement(App.Vector(0, 0, -55), App.Rotation())
sketch17.addGeometry(Part.LineSegment(App.Vector(133, -7, 0), App.Vector(139, 3, 0)), False)
sketch17.addGeometry(Part.LineSegment(App.Vector(139, 3, 0), App.Vector(150, -4, 0)), False)
sketch17.addGeometry(Part.LineSegment(App.Vector(150, -4, 0), App.Vector(145, -13, 0)), False)
sketch17.addGeometry(Part.ArcOfCircle(Part.Circle(App.Vector(139, -10, 0), App.Vector(0, 0, 1), 6), math.radians(151), math.radians(331)), False)
sketch17.addConstraint(Sketcher.Constraint("Coincident", 0, 2, 1, 1))
sketch17.addConstraint(Sketcher.Constraint("Coincident", 1, 2, 2, 1))
sketch17.addConstraint(Sketcher.Constraint("Tangent", 2, 2, 3, 2))
sketch17.addConstraint(Sketcher.Constraint("Tangent", 3, 1, 0, 1))
sketch17.addConstraint(Sketcher.Constraint("Radius", 3, Q("6.5 mm")))
sketch17.addConstraint(Sketcher.Constraint("Distance", 1, Q("13 mm")))
sketch17.addConstraint(Sketcher.Constraint("Distance", 2, Q("11 mm")))
sketch17.addConstraint(Sketcher.Constraint("DistanceX", -1, 1, 3, 3, Q("139 mm")))
sketch17.addConstraint(Sketcher.Constraint("DistanceY", 3, 3, -1, 1, Q("10 mm")))
sketch17.addConstraint(Sketcher.Constraint("DistanceX", -1, 1, 1, 2, Q("150 mm")))
sketch17.addConstraint(Sketcher.Constraint("Distance", 0, Q("11.413509 mm")))
pocket13 = body.newObject("PartDesign::Pocket", "Pocket012")
pocket13.Profile = sketch17
pocket13.Length = 5
pocket13.Reversed = True

# Sketch on YZ plane
sketch18 = body.newObject("Sketcher::SketchObject", "Sketch017")
sketch18.AttachmentSupport = (doc.getObject("YZ_Plane"), [""])
sketch18.MapMode = "FlatFace"
sketch18.AttachmentOffset = App.Placement(App.Vector(0, 0, 55), App.Rotation())
sketch18.addGeometry(Part.Circle(App.Vector(15, 16, 0), App.Vector(0, 0, 1), 8), False)
sketch18.addConstraint(Sketcher.Constraint("Diameter", 0, Q("15 mm")))
sketch18.addConstraint(Sketcher.Constraint("DistanceX", -1, 1, 0, 3, Q("15 mm")))
sketch18.addConstraint(Sketcher.Constraint("DistanceY", -1, 1, 0, 3, Q("16.5 mm")))
pocket14 = body.newObject("PartDesign::Pocket", "Pocket013")
pocket14.Profile = sketch18
pocket14.Length = 5

# Sketch on YZ plane
sketch19 = body.newObject("Sketcher::SketchObject", "Sketch018")
sketch19.AttachmentSupport = (doc.getObject("YZ_Plane"), [""])
sketch19.MapMode = "FlatFace"
sketch19.AttachmentOffset = App.Placement(App.Vector(0, 0, 55), App.Rotation())
sketch19.addGeometry(Part.Circle(App.Vector(35, 26.5, 0), App.Vector(0, 0, 1), 3.4), False)
sketch19.addGeometry(Part.Circle(App.Vector(35, -23.5, 0), App.Vector(0, 0, 1), 3.4), False)
sketch19.addConstraint(Sketcher.Constraint("Equal", 0, 1))
sketch19.addConstraint(Sketcher.Constraint("Vertical", 0, 3, 1, 3))
sketch19.addConstraint(Sketcher.Constraint("Diameter", 0, Q("6.82 mm")))
sketch19.addConstraint(Sketcher.Constraint("DistanceX", -1, 1, 0, 3, Q("35 mm")))
sketch19.addConstraint(Sketcher.Constraint("DistanceY", 1, 3, 0, 3, Q("50 mm")))
sketch19.addConstraint(Sketcher.Constraint("DistanceY", -1, 1, 0, 3, Q("26.5 mm")))
pocket15 = body.newObject("PartDesign::Pocket", "Pocket014")
pocket15.Profile = sketch19
pocket15.Length = 5

# Sketch on YZ plane
sketch20 = body.newObject("Sketcher::SketchObject", "Sketch019")
sketch20.AttachmentSupport = (doc.getObject("YZ_Plane"), [""])
sketch20.MapMode = "FlatFace"
sketch20.AttachmentOffset = App.Placement(App.Vector(0, 0, 55), App.Rotation())
sketch20.addGeometry(Part.LineSegment(App.Vector(229.6, -36.5, 0), App.Vector(224, -36.5, 0)), False)
sketch20.addGeometry(Part.ArcOfCircle(Part.Circle(App.Vector(224, -40, 0), App.Vector(0, 0, 1), 3.5), math.radians(90), math.radians(270)), False)
sketch20.addGeometry(Part.LineSegment(App.Vector(224, -43.5, 0), App.Vector(229.6, -43.5, 0)), False)
sketch20.addGeometry(Part.ArcOfCircle(Part.Circle(App.Vector(233.2, -40, 0), App.Vector(0, 0, 1), 5), math.radians(-136), math.radians(136)), False)
sketch20.addGeometry(Part.LineSegment(App.Vector(189.6, -36.5, 0), App.Vector(184, -36.5, 0)), False)
sketch20.addGeometry(Part.ArcOfCircle(Part.Circle(App.Vector(184, -40, 0), App.Vector(0, 0, 1), 3.5), math.radians(90), math.radians(270)), False)
sketch20.addGeometry(Part.LineSegment(App.Vector(184, -43.5, 0), App.Vector(189.6, -43.5, 0)), False)
sketch20.addGeometry(Part.ArcOfCircle(Part.Circle(App.Vector(193.2, -40, 0), App.Vector(0, 0, 1), 5), math.radians(-136), math.radians(136)), False)
sketch20.addConstraint(Sketcher.Constraint("Tangent", 0, 2, 1, 1))
sketch20.addConstraint(Sketcher.Constraint("Tangent", 1, 2, 2, 1))
sketch20.addConstraint(Sketcher.Constraint("Coincident", 2, 2, 3, 1))
sketch20.addConstraint(Sketcher.Constraint("Coincident", 3, 2, 0, 1))
sketch20.addConstraint(Sketcher.Constraint("Tangent", 4, 2, 5, 1))
sketch20.addConstraint(Sketcher.Constraint("Tangent", 5, 2, 6, 1))
sketch20.addConstraint(Sketcher.Constraint("Coincident", 6, 2, 7, 1))
sketch20.addConstraint(Sketcher.Constraint("Coincident", 7, 2, 4, 1))
sketch20.addConstraint(Sketcher.Constraint("Horizontal", 0))
sketch20.addConstraint(Sketcher.Constraint("Horizontal", 2))
sketch20.addConstraint(Sketcher.Constraint("Horizontal", 4))
sketch20.addConstraint(Sketcher.Constraint("Horizontal", 6))
sketch20.addConstraint(Sketcher.Constraint("Equal", 1, 5))
sketch20.addConstraint(Sketcher.Constraint("Equal", 3, 7))
sketch20.addConstraint(Sketcher.Constraint("Horizontal", 1, 3, 3, 3))
sketch20.addConstraint(Sketcher.Constraint("Horizontal", 3, 3, 5, 3))
sketch20.addConstraint(Sketcher.Constraint("Horizontal", 5, 3, 7, 3))
sketch20.addConstraint(Sketcher.Constraint("Equal", 2, 4))
sketch20.addConstraint(Sketcher.Constraint("Radius", 3, Q("5 mm")))
sketch20.addConstraint(Sketcher.Constraint("Radius", 1, Q("3.5 mm")))
sketch20.addConstraint(Sketcher.Constraint("DistanceX", -1, 1, 1, 3, Q("224 mm")))
sketch20.addConstraint(Sketcher.Constraint("DistanceY", 1, 3, -1, 1, Q("40 mm")))
sketch20.addConstraint(Sketcher.Constraint("DistanceX", -1, 1, 5, 3, Q("184 mm")))
sketch20.addConstraint(Sketcher.Constraint("DistanceX", -1, 1, 3, 3, Q("233.2 mm")))
pocket16 = body.newObject("PartDesign::Pocket", "Pocket015")
pocket16.Profile = sketch20
pocket16.Length = 5

doc.recompute()
